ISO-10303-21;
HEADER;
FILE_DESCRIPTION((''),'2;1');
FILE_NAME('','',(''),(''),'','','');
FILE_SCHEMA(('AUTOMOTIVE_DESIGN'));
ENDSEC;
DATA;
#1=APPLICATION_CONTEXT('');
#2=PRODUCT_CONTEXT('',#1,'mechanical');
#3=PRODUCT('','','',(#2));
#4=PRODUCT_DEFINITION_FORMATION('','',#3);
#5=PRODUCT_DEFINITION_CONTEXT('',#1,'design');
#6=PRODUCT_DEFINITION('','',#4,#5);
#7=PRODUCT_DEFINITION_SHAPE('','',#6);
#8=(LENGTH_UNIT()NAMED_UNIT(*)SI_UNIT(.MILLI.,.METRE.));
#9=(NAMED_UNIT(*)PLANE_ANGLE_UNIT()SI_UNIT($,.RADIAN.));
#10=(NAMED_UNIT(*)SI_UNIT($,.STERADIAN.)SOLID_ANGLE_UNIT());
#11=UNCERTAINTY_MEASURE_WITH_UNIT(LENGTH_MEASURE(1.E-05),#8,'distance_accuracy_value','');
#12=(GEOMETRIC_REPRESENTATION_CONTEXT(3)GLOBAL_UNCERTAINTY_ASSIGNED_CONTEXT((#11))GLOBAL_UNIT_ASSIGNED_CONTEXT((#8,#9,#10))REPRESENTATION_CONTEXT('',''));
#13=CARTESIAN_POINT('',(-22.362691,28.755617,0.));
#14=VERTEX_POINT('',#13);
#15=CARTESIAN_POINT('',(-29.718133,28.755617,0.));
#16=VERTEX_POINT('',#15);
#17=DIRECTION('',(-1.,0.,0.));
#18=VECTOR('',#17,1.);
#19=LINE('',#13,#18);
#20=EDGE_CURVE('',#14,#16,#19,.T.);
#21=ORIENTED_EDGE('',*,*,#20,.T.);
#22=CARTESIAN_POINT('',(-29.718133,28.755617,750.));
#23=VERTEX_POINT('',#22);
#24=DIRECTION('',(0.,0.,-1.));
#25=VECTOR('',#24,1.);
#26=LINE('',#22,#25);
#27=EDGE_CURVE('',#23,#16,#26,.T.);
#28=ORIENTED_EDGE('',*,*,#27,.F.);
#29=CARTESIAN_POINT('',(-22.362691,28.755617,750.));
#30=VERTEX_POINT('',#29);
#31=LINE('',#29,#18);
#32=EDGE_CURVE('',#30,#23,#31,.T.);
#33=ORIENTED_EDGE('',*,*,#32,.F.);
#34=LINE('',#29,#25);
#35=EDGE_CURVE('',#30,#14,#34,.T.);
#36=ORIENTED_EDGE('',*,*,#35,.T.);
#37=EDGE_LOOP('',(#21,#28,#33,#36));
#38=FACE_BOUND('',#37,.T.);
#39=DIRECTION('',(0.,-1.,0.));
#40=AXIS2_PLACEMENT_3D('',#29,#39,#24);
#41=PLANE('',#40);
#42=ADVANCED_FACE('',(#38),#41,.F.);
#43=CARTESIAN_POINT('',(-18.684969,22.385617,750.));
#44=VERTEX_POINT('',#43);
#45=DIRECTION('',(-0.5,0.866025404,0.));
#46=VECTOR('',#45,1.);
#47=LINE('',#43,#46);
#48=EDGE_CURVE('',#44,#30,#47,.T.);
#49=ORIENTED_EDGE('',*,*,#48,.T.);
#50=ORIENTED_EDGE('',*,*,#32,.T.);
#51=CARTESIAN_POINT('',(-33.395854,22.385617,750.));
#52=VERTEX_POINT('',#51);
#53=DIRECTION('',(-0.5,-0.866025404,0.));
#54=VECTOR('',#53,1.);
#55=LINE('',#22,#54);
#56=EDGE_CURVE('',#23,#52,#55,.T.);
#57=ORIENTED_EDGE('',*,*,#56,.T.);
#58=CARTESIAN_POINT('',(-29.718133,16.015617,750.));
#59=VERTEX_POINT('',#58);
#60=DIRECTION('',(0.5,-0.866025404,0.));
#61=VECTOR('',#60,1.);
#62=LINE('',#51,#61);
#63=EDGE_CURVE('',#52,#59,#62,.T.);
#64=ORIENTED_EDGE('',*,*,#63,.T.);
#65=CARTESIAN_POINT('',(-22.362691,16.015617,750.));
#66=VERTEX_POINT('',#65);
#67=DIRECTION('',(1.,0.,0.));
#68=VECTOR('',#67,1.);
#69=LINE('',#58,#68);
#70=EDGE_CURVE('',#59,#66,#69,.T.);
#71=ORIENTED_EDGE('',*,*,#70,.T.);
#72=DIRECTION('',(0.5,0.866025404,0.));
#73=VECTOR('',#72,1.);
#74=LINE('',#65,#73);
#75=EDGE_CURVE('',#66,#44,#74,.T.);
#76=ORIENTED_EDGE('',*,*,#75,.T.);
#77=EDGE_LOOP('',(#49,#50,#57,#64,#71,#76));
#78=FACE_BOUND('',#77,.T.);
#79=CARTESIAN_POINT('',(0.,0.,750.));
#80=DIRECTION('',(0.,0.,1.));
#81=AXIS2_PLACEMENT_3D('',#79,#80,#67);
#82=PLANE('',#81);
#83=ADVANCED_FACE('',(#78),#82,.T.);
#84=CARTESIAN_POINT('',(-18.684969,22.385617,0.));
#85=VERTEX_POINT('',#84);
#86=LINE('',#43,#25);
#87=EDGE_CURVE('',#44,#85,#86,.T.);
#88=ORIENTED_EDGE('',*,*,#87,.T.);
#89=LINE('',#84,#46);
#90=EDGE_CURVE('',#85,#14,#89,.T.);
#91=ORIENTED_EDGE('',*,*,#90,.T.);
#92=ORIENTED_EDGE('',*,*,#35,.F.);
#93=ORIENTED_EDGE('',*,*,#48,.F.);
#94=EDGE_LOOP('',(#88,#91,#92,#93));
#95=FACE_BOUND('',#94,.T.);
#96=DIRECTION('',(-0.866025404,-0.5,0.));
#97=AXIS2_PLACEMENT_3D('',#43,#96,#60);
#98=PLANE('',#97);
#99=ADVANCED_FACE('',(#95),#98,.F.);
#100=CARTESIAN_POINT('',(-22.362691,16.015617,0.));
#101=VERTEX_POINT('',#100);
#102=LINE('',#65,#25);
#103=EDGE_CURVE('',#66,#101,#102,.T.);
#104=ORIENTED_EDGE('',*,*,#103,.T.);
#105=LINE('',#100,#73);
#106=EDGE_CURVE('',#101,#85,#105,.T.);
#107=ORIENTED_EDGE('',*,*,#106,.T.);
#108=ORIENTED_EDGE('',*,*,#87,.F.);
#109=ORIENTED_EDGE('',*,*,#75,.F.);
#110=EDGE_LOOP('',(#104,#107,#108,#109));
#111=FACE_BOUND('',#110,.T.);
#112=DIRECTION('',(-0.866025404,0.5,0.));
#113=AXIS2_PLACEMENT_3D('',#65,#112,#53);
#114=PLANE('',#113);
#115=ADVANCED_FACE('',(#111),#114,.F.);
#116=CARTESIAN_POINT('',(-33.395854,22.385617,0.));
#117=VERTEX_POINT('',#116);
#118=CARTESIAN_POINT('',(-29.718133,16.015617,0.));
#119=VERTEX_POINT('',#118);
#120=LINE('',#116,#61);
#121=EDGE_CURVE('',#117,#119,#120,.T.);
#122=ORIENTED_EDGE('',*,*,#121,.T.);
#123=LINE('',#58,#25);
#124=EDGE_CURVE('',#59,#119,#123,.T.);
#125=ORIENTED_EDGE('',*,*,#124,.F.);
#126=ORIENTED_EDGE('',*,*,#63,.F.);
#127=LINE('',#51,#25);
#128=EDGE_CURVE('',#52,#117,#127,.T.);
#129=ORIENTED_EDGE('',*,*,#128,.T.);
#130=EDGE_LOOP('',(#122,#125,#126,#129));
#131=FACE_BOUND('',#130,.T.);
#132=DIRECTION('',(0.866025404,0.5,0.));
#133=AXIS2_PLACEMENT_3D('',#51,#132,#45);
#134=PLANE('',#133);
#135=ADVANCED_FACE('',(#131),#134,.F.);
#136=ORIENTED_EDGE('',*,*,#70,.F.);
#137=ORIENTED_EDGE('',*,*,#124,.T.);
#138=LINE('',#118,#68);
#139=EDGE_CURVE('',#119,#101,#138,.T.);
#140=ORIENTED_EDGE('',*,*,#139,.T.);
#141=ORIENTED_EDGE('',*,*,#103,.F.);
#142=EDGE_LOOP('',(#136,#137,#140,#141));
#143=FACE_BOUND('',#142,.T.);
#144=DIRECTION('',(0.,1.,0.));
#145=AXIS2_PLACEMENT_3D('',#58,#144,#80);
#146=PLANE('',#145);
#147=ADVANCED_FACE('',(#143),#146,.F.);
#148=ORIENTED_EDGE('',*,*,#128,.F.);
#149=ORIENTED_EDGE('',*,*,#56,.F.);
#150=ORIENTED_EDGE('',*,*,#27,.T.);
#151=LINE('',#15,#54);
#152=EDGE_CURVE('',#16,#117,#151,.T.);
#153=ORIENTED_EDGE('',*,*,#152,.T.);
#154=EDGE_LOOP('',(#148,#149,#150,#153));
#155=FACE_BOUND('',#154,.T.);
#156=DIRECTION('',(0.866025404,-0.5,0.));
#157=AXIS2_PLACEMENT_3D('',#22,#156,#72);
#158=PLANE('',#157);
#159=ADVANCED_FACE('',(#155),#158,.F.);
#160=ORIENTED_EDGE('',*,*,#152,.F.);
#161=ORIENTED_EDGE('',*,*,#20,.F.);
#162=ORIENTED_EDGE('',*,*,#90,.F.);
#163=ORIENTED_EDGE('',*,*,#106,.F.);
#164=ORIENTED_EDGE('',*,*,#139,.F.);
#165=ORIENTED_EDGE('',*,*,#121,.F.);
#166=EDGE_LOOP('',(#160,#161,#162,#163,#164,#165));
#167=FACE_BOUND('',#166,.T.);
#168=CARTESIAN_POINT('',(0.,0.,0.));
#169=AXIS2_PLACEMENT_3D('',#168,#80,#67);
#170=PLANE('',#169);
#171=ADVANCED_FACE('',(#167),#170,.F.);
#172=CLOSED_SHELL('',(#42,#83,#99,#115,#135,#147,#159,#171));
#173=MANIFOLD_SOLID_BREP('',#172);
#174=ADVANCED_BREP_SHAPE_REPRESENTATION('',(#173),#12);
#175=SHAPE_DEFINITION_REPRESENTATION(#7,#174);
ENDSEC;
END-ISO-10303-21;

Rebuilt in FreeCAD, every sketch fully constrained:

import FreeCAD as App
import Part
import Sketcher
Q = App.Units.Quantity

doc = App.newDocument("Part")
body = doc.addObject("PartDesign::Body", "Body")

sketch1 = body.newObject("Sketcher::SketchObject", "Sketch")
sketch1.AttachmentSupport = (doc.getObject("XY_Plane"), [""])
sketch1.MapMode = "FlatFace"
sketch1.addGeometry([
    Part.LineSegment(App.Vector(-19, 22, 0), App.Vector(-22, 29, 0)),
    Part.LineSegment(App.Vector(-22, 29, 0), App.Vector(-30, 29, 0)),
    Part.LineSegment(App.Vector(-30, 29, 0), App.Vector(-33, 22, 0)),
    Part.LineSegment(App.Vector(-33, 22, 0), App.Vector(-30, 16, 0)),
    Part.LineSegment(App.Vector(-30, 16, 0), App.Vector(-22, 16, 0)),
    Part.LineSegment(App.Vector(-22, 16, 0), App.Vector(-19, 22, 0)),
], False)
sketch1.addConstraint([
    Sketcher.Constraint("Coincident", 0, 2, 1, 1),
    Sketcher.Constraint("Coincident", 1, 2, 2, 1),
    Sketcher.Constraint("Coincident", 2, 2, 3, 1),
    Sketcher.Constraint("Coincident", 3, 2, 4, 1),
    Sketcher.Constraint("Coincident", 4, 2, 5, 1),
    Sketcher.Constraint("Coincident", 5, 2, 0, 1),
    Sketcher.Constraint("Horizontal", 1),
    Sketcher.Constraint("Horizontal", 4),
    Sketcher.Constraint("Parallel", 0, 3),
    Sketcher.Constraint("Parallel", 2, 5),
    Sketcher.Constraint("Horizontal", 2, 2, 5, 2),
    Sketcher.Constraint("Vertical", 1, 2, 3, 2),
    Sketcher.Constraint("Vertical", 0, 2, 4, 2),
    Sketcher.Constraint("Angle", 0, Q("120 deg")),
    Sketcher.Constraint("DistanceY", 2, 2, 1, 2, Q("6.37 mm")),
    Sketcher.Constraint("DistanceX", 1, 2, 1, 1, Q("7.355442 mm")),
    Sketcher.Constraint("DistanceX", 0, 2, -1, 1, Q("22.362691 mm")),
    Sketcher.Constraint("DistanceY", -1, 1, 0, 2, Q("28.755617 mm")),
])
pad1 = body.newObject("PartDesign::Pad", "Pad")
pad1.Profile = sketch1
pad1.Length = 750

doc.recompute()
